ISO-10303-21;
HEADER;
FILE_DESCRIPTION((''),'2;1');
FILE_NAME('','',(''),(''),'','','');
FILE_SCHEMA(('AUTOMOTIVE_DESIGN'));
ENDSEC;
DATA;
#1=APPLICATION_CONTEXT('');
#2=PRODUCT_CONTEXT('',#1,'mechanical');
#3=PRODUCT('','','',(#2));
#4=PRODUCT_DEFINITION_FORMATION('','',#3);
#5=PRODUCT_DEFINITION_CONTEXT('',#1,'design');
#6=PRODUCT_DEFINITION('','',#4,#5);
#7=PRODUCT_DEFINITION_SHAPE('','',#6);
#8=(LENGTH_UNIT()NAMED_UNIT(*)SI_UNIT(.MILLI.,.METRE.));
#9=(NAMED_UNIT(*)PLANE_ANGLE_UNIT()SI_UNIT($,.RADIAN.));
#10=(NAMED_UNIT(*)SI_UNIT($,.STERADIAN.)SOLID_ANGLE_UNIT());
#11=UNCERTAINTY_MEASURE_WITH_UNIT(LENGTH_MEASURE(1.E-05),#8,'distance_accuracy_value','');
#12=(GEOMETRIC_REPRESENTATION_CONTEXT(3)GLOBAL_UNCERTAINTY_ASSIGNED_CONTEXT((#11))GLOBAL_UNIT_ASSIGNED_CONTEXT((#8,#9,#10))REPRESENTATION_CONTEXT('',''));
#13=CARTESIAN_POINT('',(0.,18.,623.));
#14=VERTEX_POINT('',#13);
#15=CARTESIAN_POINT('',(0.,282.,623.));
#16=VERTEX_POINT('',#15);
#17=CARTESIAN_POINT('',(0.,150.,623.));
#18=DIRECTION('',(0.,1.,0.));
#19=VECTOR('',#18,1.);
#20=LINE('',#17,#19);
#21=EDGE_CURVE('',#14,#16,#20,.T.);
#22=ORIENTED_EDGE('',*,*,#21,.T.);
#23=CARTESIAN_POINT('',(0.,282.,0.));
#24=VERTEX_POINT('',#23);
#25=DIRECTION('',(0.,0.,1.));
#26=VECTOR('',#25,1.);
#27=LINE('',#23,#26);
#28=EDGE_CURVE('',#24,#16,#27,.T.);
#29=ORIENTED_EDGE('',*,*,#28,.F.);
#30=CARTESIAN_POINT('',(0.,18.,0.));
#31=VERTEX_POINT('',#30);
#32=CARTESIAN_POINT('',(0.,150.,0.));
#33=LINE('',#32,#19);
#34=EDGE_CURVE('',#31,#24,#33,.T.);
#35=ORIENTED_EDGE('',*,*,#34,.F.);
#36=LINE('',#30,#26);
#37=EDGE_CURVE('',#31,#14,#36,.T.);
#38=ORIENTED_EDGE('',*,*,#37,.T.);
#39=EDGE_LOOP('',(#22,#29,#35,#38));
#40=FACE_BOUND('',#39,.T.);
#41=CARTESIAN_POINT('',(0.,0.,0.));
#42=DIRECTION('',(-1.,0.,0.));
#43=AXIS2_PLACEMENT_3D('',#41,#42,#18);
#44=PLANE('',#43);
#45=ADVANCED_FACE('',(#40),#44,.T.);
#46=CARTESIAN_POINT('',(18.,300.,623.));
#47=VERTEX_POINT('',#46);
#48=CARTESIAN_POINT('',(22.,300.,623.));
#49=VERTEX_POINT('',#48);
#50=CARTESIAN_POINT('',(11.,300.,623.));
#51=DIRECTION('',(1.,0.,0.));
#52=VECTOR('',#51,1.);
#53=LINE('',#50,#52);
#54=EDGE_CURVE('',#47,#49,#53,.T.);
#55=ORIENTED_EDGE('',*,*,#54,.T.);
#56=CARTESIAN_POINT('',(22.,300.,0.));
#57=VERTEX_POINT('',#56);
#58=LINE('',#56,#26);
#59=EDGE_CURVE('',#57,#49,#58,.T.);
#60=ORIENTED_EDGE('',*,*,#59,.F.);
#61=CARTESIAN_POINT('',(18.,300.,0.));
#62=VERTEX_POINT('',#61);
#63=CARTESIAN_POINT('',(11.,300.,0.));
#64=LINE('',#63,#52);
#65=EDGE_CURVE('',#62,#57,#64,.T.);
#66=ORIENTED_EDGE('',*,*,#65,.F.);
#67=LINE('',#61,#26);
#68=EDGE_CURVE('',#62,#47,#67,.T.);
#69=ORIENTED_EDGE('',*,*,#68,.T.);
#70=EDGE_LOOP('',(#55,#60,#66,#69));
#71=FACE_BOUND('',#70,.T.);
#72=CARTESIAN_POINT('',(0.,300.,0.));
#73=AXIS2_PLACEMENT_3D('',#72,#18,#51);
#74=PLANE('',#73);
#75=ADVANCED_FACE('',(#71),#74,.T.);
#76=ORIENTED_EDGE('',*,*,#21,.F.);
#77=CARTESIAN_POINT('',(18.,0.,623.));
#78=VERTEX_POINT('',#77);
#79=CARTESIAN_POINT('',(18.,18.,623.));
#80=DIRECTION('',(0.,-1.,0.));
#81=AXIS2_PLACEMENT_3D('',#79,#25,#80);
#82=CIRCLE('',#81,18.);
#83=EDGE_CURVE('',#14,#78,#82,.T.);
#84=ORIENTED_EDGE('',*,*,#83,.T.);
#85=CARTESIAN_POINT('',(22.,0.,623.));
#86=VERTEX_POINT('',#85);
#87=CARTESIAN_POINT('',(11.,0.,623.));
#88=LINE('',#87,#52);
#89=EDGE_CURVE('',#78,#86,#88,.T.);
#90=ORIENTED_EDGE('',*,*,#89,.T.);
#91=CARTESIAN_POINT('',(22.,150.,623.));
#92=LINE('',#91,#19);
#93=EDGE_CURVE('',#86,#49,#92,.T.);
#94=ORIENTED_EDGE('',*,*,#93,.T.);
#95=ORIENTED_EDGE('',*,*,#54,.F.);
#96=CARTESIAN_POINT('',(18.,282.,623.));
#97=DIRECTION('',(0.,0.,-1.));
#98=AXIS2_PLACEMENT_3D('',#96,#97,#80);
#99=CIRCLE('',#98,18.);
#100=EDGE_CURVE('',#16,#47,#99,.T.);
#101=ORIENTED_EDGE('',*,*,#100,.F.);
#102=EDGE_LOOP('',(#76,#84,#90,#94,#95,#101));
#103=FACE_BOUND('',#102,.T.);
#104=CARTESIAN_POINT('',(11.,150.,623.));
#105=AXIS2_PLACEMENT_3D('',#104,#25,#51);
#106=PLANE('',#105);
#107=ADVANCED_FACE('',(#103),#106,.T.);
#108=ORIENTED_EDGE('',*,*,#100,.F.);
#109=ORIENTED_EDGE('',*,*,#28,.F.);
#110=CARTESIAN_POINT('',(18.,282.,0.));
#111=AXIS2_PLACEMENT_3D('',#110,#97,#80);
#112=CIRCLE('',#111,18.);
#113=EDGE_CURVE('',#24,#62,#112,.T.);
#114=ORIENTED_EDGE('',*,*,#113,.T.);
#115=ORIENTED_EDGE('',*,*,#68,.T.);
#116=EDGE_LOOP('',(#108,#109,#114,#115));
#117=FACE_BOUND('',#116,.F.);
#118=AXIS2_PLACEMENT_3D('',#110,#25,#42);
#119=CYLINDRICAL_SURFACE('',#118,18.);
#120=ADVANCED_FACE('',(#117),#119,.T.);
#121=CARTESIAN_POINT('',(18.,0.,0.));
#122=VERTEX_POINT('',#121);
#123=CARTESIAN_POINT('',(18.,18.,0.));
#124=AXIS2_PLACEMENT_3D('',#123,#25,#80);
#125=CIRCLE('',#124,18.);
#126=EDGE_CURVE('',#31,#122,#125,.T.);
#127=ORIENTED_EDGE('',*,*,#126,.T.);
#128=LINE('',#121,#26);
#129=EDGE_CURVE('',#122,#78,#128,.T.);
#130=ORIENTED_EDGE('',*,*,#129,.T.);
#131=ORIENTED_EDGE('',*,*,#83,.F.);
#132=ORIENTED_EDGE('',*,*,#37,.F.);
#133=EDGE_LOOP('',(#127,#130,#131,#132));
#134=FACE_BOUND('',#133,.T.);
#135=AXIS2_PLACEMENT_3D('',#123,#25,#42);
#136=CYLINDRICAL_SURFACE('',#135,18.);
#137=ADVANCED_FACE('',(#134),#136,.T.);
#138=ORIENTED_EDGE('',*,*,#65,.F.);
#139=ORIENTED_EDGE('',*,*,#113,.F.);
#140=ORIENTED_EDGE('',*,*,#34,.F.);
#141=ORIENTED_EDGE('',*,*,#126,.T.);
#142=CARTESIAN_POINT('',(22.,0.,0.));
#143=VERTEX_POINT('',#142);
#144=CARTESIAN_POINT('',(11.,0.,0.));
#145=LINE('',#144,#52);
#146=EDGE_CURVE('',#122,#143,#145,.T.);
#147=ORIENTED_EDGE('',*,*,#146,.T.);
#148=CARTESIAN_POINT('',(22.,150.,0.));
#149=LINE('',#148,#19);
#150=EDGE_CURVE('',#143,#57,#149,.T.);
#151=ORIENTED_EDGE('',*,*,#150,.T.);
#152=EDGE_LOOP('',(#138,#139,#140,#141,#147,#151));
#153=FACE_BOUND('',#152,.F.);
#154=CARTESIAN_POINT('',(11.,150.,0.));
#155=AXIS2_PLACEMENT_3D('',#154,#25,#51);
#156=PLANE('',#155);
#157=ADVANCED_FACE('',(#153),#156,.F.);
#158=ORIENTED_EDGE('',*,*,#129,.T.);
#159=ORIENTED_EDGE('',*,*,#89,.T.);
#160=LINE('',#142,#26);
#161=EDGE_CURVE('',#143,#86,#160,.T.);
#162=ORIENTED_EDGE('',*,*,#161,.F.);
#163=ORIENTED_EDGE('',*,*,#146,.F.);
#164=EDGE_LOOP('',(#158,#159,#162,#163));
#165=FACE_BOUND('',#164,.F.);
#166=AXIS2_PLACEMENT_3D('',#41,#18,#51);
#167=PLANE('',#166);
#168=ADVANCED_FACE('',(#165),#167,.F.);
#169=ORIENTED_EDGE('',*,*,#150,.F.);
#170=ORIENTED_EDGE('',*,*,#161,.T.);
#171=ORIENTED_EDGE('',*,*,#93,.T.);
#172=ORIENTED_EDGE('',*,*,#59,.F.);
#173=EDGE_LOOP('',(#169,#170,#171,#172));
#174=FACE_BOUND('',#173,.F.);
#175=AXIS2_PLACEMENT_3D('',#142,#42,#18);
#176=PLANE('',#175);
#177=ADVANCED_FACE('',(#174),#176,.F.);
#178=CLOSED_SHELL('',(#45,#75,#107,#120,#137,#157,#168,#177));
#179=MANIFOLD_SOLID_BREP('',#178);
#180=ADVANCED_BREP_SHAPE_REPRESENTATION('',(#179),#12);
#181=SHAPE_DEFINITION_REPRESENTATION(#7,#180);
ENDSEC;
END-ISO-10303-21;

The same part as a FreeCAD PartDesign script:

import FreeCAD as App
import Part
import Sketcher
from FreeCAD import Vector
Q = App.Units.Quantity


def edges_at(feature, points):
    """Names of the edges that pass closest to the given points."""
    edges = feature.Shape.Edges
    near = lambda p: min(range(len(edges)), key=lambda i: edges[i].distToShape(Part.Vertex(*p))[0])
    return sorted({f"Edge{near(p) + 1}" for p in points})

doc = App.newDocument("Part")
params = doc.addObject("Spreadsheet::Sheet", "Params")
for row, (alias, value) in enumerate([
    ("sketch1_width", "22 mm"),
    ("sketch1_height", "300 mm"),
    ("pad1_length", "623 mm"),
    ("fillet_radius", "18 mm"),
    ("fillet2_radius", "18 mm"),
], start=1):
    params.set(f"A{row}", alias)
    params.set(f"B{row}", "=" + value)
    params.setAlias(f"B{row}", alias)

body = doc.addObject("PartDesign::Body", "Body")

sketch1 = body.newObject("Sketcher::SketchObject", "Sketch")
sketch1.AttachmentSupport = (doc.getObject("XY_Plane"), [""])
sketch1.MapMode = "FlatFace"
sketch1.addGeometry([
    Part.LineSegment(Vector(0, 300, 0), Vector(0, 0, 0)),
    Part.LineSegment(Vector(0, 0, 0), Vector(22, 0, 0)),
    Part.LineSegment(Vector(22, 0, 0), Vector(22, 300, 0)),
    Part.LineSegment(Vector(22, 300, 0), Vector(0, 300, 0)),
], False)
sketch1.addConstraint([
    Sketcher.Constraint("Coincident", 0, 2, 1, 1),
    Sketcher.Constraint("Coincident", 1, 2, 2, 1),
    Sketcher.Constraint("Coincident", 2, 2, 3, 1),
    Sketcher.Constraint("Coincident", 3, 2, 0, 1),
    Sketcher.Constraint("Vertical", 0),
    Sketcher.Constraint("Horizontal", 1),
    Sketcher.Constraint("Vertical", 2),
    Sketcher.Constraint("Horizontal", 3),
    Sketcher.Constraint("Coincident", 0, 2, -1, 1),
    Sketcher.Constraint("DistanceX", 1, 1, 1, 2, Q("22 mm")),
    Sketcher.Constraint("DistanceY", 0, 2, 0, 1, Q("300 mm")),
])
sketch1.setExpression("Constraints[9]", "Params.sketch1_width")
sketch1.setExpression("Constraints[10]", "Params.sketch1_height")
pad1 = body.newObject("PartDesign::Pad", "Pad")
pad1.Profile = sketch1
pad1.setExpression("Length", "Params.pad1_length")
doc.recompute()

fillet = body.newObject("PartDesign::Fillet", "Fillet")
fillet.Base = (pad1, edges_at(pad1, [(0, 0, 311.5)]))
fillet.setExpression("Radius", "Params.fillet_radius")
doc.recompute()

fillet2 = body.newObject("PartDesign::Fillet", "Fillet001")
fillet2.Base = (fillet, edges_at(fillet, [(0, 300, 311.5)]))
fillet2.setExpression("Radius", "Params.fillet2_radius")

doc.recompute()
